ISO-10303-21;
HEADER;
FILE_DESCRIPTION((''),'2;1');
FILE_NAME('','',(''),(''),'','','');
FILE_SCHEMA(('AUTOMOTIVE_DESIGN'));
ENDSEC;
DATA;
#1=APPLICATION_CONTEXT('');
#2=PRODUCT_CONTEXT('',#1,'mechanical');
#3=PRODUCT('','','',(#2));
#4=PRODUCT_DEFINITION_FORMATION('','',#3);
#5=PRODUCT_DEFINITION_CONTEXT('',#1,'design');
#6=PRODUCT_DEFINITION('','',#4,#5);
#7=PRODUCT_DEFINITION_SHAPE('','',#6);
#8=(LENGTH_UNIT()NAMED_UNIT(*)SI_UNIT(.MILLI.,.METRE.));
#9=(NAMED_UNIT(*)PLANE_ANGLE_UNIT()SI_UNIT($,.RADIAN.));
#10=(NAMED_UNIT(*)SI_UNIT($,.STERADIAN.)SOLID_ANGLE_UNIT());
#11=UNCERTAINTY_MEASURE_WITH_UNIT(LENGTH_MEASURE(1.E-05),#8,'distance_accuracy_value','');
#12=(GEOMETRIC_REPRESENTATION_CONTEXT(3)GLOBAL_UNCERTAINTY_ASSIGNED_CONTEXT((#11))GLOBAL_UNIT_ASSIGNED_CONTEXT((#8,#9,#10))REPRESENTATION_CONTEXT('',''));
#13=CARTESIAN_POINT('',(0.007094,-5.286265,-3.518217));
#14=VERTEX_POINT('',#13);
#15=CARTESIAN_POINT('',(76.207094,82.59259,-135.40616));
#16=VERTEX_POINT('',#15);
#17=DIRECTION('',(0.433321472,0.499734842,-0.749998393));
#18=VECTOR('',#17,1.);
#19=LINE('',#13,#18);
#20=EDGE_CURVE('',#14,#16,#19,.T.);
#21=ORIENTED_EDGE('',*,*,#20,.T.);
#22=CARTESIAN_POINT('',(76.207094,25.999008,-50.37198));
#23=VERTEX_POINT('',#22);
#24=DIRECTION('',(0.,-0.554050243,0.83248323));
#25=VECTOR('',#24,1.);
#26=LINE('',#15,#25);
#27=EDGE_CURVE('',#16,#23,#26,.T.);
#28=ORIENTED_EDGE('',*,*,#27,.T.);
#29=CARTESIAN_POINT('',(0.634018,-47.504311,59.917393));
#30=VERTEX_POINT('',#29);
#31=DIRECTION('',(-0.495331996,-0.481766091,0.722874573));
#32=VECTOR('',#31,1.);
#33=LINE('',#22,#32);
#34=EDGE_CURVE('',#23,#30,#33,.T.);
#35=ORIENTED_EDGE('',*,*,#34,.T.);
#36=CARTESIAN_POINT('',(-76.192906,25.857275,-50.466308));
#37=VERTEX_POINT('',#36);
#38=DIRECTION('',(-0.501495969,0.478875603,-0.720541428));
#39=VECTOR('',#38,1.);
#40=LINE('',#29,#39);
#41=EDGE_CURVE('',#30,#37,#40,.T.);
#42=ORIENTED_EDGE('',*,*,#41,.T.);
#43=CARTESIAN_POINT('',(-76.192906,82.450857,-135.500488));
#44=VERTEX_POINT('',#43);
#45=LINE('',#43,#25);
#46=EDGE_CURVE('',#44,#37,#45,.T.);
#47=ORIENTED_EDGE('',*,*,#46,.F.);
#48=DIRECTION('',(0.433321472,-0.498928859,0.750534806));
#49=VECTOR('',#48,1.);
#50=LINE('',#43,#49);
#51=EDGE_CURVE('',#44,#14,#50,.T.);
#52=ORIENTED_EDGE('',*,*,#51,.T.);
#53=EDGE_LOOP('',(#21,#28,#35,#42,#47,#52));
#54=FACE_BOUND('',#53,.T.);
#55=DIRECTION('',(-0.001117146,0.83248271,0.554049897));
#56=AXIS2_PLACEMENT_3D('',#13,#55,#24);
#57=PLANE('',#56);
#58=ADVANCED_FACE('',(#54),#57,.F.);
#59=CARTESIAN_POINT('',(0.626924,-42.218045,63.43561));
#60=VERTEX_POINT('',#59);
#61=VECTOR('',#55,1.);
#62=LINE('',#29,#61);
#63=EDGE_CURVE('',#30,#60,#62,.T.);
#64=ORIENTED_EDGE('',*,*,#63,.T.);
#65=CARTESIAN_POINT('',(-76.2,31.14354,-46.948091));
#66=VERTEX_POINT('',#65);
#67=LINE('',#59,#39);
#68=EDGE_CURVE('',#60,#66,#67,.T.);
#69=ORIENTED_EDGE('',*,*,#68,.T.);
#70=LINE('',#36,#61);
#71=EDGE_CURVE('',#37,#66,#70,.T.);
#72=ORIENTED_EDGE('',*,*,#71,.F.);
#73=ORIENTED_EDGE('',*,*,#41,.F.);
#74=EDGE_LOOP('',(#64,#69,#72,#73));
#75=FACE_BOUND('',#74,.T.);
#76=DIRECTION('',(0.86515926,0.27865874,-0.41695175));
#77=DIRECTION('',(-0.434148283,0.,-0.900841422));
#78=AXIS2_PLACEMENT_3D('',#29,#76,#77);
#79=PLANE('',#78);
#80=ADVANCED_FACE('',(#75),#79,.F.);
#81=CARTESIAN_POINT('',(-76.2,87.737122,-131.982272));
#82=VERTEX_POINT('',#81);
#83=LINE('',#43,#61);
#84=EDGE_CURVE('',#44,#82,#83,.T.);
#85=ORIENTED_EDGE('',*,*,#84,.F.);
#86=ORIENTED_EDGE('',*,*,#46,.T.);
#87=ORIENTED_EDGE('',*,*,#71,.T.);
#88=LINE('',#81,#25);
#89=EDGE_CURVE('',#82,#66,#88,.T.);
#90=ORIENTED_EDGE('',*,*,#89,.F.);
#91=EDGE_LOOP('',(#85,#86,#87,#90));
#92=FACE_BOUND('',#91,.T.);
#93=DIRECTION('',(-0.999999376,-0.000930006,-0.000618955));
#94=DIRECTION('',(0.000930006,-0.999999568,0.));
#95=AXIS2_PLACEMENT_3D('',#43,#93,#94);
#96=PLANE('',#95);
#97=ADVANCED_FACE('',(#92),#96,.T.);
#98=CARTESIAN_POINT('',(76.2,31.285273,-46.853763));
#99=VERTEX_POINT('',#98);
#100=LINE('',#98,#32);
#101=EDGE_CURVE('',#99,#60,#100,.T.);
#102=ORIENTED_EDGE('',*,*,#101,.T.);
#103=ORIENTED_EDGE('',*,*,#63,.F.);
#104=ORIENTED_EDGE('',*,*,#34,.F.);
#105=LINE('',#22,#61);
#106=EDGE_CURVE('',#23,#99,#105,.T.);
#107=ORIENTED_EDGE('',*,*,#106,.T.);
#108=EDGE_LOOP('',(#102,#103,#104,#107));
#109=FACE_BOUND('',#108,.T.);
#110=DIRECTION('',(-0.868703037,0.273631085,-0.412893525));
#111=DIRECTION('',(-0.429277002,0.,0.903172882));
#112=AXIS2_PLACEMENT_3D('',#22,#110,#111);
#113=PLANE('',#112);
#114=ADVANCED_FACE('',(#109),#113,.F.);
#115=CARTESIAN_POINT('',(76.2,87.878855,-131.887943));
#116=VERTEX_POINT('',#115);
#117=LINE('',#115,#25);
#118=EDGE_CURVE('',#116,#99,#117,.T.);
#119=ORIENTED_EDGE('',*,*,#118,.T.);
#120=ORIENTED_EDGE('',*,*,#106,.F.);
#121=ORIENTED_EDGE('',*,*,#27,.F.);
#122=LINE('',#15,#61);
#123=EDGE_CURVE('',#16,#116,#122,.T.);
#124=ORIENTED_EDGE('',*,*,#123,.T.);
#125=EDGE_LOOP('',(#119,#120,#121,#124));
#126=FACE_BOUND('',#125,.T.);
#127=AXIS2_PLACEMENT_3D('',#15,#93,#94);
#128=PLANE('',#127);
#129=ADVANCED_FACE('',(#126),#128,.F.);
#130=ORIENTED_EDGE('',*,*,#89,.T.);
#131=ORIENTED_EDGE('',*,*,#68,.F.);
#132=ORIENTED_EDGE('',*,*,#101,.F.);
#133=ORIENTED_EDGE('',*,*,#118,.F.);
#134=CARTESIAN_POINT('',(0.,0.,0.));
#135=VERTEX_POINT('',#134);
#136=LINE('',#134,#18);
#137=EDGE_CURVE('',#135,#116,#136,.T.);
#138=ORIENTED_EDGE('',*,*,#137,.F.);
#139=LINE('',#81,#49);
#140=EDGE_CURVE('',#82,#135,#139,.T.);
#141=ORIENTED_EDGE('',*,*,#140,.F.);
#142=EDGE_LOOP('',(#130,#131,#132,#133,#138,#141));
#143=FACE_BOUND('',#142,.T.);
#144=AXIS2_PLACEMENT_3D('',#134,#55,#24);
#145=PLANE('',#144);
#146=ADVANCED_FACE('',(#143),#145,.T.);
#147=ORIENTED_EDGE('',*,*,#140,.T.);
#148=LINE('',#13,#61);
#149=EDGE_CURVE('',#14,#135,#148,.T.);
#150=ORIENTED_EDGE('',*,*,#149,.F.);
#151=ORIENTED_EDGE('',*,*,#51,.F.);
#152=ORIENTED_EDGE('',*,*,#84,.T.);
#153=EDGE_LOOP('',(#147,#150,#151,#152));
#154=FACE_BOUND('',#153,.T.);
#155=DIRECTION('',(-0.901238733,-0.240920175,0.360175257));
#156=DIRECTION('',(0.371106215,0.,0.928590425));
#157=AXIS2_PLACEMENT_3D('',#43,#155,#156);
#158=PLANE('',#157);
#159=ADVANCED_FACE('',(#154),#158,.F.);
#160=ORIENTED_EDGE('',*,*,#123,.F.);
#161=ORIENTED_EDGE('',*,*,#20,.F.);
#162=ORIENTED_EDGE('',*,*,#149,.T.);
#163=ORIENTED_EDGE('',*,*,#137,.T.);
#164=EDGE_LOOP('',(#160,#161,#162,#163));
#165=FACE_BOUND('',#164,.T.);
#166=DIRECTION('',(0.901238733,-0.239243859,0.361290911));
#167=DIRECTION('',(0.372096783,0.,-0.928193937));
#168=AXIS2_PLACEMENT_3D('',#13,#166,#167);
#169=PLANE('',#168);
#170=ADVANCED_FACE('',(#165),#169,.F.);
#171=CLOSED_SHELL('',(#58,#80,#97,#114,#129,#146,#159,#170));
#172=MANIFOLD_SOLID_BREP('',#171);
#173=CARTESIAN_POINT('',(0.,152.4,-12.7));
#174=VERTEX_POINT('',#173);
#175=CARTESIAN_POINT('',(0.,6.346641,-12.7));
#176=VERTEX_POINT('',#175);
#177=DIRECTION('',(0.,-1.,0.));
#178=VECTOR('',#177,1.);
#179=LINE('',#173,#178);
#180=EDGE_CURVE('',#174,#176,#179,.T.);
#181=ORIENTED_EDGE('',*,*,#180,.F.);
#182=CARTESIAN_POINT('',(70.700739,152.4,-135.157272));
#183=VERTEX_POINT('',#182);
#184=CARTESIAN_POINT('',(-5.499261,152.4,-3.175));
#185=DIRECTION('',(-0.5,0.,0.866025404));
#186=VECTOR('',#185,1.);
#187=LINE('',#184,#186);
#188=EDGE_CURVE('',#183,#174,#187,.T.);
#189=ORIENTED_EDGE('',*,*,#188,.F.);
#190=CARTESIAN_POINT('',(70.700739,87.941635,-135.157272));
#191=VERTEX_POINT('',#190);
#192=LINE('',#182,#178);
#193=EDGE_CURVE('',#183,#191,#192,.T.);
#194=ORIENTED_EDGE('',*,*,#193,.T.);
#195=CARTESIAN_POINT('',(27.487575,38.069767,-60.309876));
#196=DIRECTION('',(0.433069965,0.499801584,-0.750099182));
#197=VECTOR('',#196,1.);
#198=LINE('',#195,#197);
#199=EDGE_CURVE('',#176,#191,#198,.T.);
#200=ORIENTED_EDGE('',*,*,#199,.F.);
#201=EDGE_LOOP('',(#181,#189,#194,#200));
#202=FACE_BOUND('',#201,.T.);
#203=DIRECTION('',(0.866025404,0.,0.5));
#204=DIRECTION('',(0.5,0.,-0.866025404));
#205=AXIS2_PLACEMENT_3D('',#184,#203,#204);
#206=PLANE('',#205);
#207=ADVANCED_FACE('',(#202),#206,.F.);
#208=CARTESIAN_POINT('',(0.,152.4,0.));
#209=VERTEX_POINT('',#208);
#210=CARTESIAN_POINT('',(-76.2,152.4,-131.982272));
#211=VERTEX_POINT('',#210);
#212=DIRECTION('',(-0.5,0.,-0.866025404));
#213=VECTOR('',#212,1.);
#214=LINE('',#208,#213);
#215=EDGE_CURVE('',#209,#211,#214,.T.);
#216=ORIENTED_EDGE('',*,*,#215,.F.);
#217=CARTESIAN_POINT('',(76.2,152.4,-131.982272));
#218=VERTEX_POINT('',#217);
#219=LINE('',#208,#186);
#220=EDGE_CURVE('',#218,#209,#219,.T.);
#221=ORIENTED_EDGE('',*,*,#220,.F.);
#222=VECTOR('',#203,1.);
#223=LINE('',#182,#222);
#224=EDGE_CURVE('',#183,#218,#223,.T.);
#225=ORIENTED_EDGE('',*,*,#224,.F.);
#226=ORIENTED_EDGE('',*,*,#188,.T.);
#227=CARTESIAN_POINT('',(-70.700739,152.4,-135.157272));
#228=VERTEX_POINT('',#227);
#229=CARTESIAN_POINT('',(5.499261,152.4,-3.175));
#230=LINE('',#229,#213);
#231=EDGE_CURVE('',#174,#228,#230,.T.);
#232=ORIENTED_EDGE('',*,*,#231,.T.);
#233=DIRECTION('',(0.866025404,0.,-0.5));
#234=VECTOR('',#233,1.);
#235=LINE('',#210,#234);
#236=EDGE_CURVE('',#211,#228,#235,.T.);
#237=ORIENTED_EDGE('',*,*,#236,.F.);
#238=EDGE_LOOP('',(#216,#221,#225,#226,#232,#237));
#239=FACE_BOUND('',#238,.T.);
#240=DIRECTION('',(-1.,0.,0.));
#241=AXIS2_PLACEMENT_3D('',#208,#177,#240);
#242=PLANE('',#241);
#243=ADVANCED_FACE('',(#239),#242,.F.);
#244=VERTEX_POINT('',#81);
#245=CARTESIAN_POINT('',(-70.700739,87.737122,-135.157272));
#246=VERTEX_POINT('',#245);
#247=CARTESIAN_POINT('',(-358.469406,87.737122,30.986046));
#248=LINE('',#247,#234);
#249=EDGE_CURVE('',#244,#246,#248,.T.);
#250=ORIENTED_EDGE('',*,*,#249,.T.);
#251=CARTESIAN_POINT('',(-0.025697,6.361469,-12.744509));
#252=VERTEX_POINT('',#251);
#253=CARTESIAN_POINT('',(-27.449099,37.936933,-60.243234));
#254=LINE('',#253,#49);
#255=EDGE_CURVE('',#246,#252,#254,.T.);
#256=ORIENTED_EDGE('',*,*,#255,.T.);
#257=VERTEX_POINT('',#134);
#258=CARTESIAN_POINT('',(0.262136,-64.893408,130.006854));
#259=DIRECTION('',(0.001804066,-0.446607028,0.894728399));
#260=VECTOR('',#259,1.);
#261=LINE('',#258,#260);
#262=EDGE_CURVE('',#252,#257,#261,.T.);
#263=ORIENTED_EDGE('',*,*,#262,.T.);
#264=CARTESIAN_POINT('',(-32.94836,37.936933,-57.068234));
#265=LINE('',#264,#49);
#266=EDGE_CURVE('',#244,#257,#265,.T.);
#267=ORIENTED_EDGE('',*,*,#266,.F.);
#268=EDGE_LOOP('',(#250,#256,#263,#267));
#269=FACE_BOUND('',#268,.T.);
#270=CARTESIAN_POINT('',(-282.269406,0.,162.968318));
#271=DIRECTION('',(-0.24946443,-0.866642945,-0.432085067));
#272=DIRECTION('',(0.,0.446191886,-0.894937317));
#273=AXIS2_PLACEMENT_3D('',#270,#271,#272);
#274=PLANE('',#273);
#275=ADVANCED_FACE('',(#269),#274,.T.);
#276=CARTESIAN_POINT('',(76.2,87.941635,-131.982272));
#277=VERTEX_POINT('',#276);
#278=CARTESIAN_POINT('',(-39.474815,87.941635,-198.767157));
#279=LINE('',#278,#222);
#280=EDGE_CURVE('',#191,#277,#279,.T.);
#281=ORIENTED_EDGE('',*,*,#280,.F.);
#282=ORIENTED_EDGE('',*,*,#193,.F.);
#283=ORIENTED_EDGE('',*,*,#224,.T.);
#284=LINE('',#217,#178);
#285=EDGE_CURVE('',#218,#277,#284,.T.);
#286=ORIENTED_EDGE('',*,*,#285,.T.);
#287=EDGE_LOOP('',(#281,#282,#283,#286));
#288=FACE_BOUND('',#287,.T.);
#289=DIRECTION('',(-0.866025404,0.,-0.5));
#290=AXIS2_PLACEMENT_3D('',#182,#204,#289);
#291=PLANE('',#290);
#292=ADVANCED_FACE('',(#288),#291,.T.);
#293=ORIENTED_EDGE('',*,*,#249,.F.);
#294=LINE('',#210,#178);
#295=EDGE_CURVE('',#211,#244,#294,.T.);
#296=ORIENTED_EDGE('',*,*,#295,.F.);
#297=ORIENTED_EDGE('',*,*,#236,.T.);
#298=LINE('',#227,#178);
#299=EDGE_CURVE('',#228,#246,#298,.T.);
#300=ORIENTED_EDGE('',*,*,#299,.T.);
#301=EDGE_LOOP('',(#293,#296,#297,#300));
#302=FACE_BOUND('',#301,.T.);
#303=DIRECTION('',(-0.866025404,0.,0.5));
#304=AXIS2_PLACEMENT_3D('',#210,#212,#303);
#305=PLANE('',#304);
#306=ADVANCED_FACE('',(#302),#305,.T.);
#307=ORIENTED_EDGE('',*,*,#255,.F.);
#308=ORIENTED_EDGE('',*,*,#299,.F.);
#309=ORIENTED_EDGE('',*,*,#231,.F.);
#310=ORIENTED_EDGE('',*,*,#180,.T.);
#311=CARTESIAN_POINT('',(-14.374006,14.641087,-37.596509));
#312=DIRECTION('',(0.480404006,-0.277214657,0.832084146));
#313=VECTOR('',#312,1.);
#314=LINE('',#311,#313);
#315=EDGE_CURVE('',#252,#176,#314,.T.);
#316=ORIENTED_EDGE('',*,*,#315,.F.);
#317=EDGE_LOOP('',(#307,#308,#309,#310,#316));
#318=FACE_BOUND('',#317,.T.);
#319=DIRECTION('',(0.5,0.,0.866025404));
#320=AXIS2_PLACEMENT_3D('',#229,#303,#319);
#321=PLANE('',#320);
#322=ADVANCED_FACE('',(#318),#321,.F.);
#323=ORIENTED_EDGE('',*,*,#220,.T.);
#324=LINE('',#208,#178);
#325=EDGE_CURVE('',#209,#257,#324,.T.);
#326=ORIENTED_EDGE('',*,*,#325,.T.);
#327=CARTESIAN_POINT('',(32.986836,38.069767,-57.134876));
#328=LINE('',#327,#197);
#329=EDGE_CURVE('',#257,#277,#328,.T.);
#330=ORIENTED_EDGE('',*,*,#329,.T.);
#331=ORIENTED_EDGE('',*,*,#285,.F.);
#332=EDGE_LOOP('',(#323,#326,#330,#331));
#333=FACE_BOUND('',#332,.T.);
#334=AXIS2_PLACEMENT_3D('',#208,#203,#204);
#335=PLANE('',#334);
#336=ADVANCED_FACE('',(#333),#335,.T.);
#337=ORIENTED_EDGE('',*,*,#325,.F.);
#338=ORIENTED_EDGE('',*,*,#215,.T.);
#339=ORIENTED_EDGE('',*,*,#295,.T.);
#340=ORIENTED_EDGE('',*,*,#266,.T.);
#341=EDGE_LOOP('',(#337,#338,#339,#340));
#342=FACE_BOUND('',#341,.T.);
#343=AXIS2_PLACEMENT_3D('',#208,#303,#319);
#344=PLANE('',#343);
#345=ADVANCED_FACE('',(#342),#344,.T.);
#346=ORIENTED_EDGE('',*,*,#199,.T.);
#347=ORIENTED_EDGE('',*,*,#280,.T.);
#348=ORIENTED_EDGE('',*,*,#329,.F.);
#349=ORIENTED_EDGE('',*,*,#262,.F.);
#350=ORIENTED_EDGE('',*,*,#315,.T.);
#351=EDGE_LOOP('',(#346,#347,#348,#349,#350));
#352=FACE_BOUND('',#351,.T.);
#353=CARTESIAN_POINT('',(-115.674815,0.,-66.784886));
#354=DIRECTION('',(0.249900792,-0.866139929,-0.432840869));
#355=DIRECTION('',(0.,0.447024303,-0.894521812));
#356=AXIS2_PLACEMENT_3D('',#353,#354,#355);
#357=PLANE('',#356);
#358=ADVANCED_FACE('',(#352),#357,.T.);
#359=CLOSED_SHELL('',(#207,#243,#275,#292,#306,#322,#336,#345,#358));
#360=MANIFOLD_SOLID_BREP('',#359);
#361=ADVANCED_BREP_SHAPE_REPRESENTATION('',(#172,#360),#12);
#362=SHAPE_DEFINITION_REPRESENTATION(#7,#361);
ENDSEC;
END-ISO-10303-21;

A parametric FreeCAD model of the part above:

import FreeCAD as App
import Part
import Sketcher

V = App.Vector
Q = App.Units.Quantity

doc = App.newDocument("Part")
body = doc.addObject("PartDesign::Body", "Body")

sketch1 = body.newObject("Sketcher::SketchObject", "Sketch")
sketch1.AttachmentSupport = (doc.getObject("XZ_Plane"), [""])
sketch1.MapMode = "FlatFace"
sketch1.addGeometry(Part.LineSegment(V(-76, -132, 0), V(0, 0, 0)), False)
sketch1.addGeometry(Part.LineSegment(V(0, 0, 0), V(76, -132, 0)), False)
sketch1.addGeometry(Part.LineSegment(V(76, -132, 0), V(71, -135, 0)), False)
sketch1.addGeometry(Part.LineSegment(V(71, -135, 0), V(0, -13, 0)), False)
sketch1.addGeometry(Part.LineSegment(V(0, -13, 0), V(-71, -135, 0)), False)
sketch1.addGeometry(Part.LineSegment(V(-71, -135, 0), V(-76, -132, 0)), False)
sketch1.addConstraint(Sketcher.Constraint("Coincident", 0, 2, 1, 1))
sketch1.addConstraint(Sketcher.Constraint("Coincident", 1, 2, 2, 1))
sketch1.addConstraint(Sketcher.Constraint("Coincident", 2, 2, 3, 1))
sketch1.addConstraint(Sketcher.Constraint("Coincident", 3, 2, 4, 1))
sketch1.addConstraint(Sketcher.Constraint("Coincident", 4, 2, 5, 1))
sketch1.addConstraint(Sketcher.Constraint("Coincident", 5, 2, 0, 1))
sketch1.addConstraint(Sketcher.Constraint("Coincident", 0, 2, -1, 1))
sketch1.addConstraint(Sketcher.Constraint("Symmetric", 2, 2, 4, 2, -2))
sketch1.addConstraint(Sketcher.Constraint("Symmetric", 1, 2, 5, 2, -2))
sketch1.addConstraint(Sketcher.Constraint("PointOnObject", 3, 2, -2))
sketch1.addConstraint(Sketcher.Constraint("Perpendicular", 1, 2))
sketch1.addConstraint(Sketcher.Constraint("Perpendicular", 2, 3))
sketch1.addConstraint(Sketcher.Constraint("Distance", 0, Q("6 in")))
sketch1.addConstraint(Sketcher.Constraint("DistanceX", -1, 1, 1, 2, Q("3 in")))
sketch1.addConstraint(Sketcher.Constraint("DistanceY", 3, 2, -1, 1, Q("0.5 in")))
pad1 = body.newObject("PartDesign::Pad", "Pad")
pad1.Profile = sketch1
pad1.Length = Q("6 in")
pad1.Reversed = True

sketch2 = body.newObject("Sketcher::SketchObject", "Sketch001")
sketch2.Placement = App.Placement(V(0, 0, 0), App.Rotation(V(0.5, 0, 0.866025404), V(0, 1, 0), V(-0.866025404, 0, 0.5), "ZXY"))
sketch2.addGeometry(Part.LineSegment(V(386, -222, 0), V(0, 0, 0)), False)
sketch2.addGeometry(Part.LineSegment(V(0, 0, 0), V(-152, 88, 0)), False)
sketch2.addGeometry(Part.LineSegment(V(-152, 88, 0), V(-538, 310, 0)), False)
sketch2.addGeometry(Part.LineSegment(V(-538, 310, 0), V(-982, -462, 0)), False)
sketch2.addGeometry(Part.LineSegment(V(-982, -462, 0), V(-58, -993, 0)), False)
sketch2.addGeometry(Part.LineSegment(V(-58, -993, 0), V(386, -222, 0)), False)
sketch2.addConstraint(Sketcher.Constraint("Coincident", 0, 2, 1, 1))
sketch2.addConstraint(Sketcher.Constraint("Coincident", 1, 2, 2, 1))
sketch2.addConstraint(Sketcher.Constraint("Coincident", 2, 2, 3, 1))
sketch2.addConstraint(Sketcher.Constraint("Coincident", 3, 2, 4, 1))
sketch2.addConstraint(Sketcher.Constraint("Coincident", 4, 2, 5, 1))
sketch2.addConstraint(Sketcher.Constraint("Coincident", 5, 2, 0, 1))
sketch2.addConstraint(Sketcher.Constraint("Coincident", 0, 2, -1, 1))
sketch2.addConstraint(Sketcher.Constraint("Parallel", 0, 1))
sketch2.addConstraint(Sketcher.Constraint("Parallel", 1, 2))
sketch2.addConstraint(Sketcher.Constraint("Perpendicular", 2, 3))
sketch2.addConstraint(Sketcher.Constraint("Perpendicular", 3, 4))
sketch2.addConstraint(Sketcher.Constraint("Perpendicular", 4, 5))
sketch2.addConstraint(Sketcher.Constraint("Equal", 0, 2))
sketch2.addConstraint(Sketcher.Constraint("DistanceX", 1, 2, -1, 1, Q("6 in")))
sketch2.addConstraint(Sketcher.Constraint("Distance", 0, 444.958241))
sketch2.addConstraint(Sketcher.Constraint("Distance", 4, 1065.76745))
sketch2.addConstraint(Sketcher.Constraint("DistanceY", 3, 2, -1, 1, 461.500211))
pocket1 = body.newObject("PartDesign::Pocket", "Pocket")
pocket1.Profile = sketch2
pocket1.Type = "ThroughAll"
pocket1.Midplane = True

sketch3 = body.newObject("Sketcher::SketchObject", "Sketch002")
sketch3.Placement = App.Placement(V(0, 0, 0), App.Rotation(V(0.5, 0, -0.866025404), V(0, 1, 0), V(0.866025404, 0, 0.5), "ZXY"))
sketch3.addGeometry(Part.LineSegment(V(152, 88, 0), V(0, 0, 0)), False)
sketch3.addGeometry(Part.LineSegment(V(0, 0, 0), V(152, 0, 0)), False)
sketch3.addGeometry(Part.LineSegment(V(152, 0, 0), V(152, 88, 0)), False)
sketch3.addConstraint(Sketcher.Constraint("Coincident", 0, 2, 1, 1))
sketch3.addConstraint(Sketcher.Constraint("Coincident", 1, 2, 2, 1))
sketch3.addConstraint(Sketcher.Constraint("Coincident", 2, 2, 0, 1))
sketch3.addConstraint(Sketcher.Constraint("Horizontal", 1))
sketch3.addConstraint(Sketcher.Constraint("Vertical", 2))
sketch3.addConstraint(Sketcher.Constraint("Coincident", 0, 2, -1, 1))
sketch3.addConstraint(Sketcher.Constraint("DistanceX", 1, 1, 1, 2, Q("6 in")))
sketch3.addConstraint(Sketcher.Constraint("DistanceY", 2, 1, 2, 2, 87.941635))
pocket2 = body.newObject("PartDesign::Pocket", "Pocket001")
pocket2.Profile = sketch3
pocket2.Type = "ThroughAll"
pocket2.Midplane = True
body2 = doc.addObject("PartDesign::Body", "Body001")

sketch4 = body2.newObject("Sketcher::SketchObject", "Sketch003")
sketch4.Placement = App.Placement(V(0, 0, 0), App.Rotation(V(-0.999999376, -0.000930006, -0.000618955), V(0, 0.554050243, -0.832483229), V(0.001117146, -0.83248271, -0.554049897), "ZXY"))
sketch4.addGeometry(Part.LineSegment(V(-1, -76, 0), V(76, 56, 0)), False)
sketch4.addGeometry(Part.LineSegment(V(76, 56, 0), V(76, 158, 0)), False)
sketch4.addGeometry(Part.LineSegment(V(76, 158, 0), V(0, 0, 0)), False)
sketch4.addGeometry(Part.LineSegment(V(0, 0, 0), V(-76, 158, 0)), False)
sketch4.addGeometry(Part.LineSegment(V(-76, 158, 0), V(-76, 56, 0)), False)
sketch4.addGeometry(Part.LineSegment(V(-76, 56, 0), V(-1, -76, 0)), False)
sketch4.addConstraint(Sketcher.Constraint("Coincident", 0, 2, 1, 1))
sketch4.addConstraint(Sketcher.Constraint("Coincident", 1, 2, 2, 1))
sketch4.addConstraint(Sketcher.Constraint("Coincident", 2, 2, 3, 1))
sketch4.addConstraint(Sketcher.Constraint("Coincident", 3, 2, 4, 1))
sketch4.addConstraint(Sketcher.Constraint("Coincident", 4, 2, 5, 1))
sketch4.addConstraint(Sketcher.Constraint("Coincident", 5, 2, 0, 1))
sketch4.addConstraint(Sketcher.Constraint("Vertical", 1))
sketch4.addConstraint(Sketcher.Constraint("Vertical", 4))
sketch4.addConstraint(Sketcher.Constraint("Coincident", 2, 2, -1, 1))
sketch4.addConstraint(Sketcher.Constraint("Symmetric", 1, 2, 3, 2, -2))
sketch4.addConstraint(Sketcher.Constraint("Horizontal", 0, 2, 4, 2))
sketch4.addConstraint(Sketcher.Constraint("DistanceY", 5, 2, -1, 1, Q("3 in")))
sketch4.addConstraint(Sketcher.Constraint("DistanceY", -1, 1, 1, 2, 158.483802))
sketch4.addConstraint(Sketcher.Constraint("DistanceY", 1, 1, 1, 2, 102.145217))
sketch4.addConstraint(Sketcher.Constraint("DistanceX", 5, 2, 0, 2, 76.826972))
sketch4.addConstraint(Sketcher.Constraint("Distance", 2, 175.850967))
pad2 = body2.newObject("PartDesign::Pad", "Pad001")
pad2.Profile = sketch4
pad2.Length = Q("0.25 in")

doc.recompute()
